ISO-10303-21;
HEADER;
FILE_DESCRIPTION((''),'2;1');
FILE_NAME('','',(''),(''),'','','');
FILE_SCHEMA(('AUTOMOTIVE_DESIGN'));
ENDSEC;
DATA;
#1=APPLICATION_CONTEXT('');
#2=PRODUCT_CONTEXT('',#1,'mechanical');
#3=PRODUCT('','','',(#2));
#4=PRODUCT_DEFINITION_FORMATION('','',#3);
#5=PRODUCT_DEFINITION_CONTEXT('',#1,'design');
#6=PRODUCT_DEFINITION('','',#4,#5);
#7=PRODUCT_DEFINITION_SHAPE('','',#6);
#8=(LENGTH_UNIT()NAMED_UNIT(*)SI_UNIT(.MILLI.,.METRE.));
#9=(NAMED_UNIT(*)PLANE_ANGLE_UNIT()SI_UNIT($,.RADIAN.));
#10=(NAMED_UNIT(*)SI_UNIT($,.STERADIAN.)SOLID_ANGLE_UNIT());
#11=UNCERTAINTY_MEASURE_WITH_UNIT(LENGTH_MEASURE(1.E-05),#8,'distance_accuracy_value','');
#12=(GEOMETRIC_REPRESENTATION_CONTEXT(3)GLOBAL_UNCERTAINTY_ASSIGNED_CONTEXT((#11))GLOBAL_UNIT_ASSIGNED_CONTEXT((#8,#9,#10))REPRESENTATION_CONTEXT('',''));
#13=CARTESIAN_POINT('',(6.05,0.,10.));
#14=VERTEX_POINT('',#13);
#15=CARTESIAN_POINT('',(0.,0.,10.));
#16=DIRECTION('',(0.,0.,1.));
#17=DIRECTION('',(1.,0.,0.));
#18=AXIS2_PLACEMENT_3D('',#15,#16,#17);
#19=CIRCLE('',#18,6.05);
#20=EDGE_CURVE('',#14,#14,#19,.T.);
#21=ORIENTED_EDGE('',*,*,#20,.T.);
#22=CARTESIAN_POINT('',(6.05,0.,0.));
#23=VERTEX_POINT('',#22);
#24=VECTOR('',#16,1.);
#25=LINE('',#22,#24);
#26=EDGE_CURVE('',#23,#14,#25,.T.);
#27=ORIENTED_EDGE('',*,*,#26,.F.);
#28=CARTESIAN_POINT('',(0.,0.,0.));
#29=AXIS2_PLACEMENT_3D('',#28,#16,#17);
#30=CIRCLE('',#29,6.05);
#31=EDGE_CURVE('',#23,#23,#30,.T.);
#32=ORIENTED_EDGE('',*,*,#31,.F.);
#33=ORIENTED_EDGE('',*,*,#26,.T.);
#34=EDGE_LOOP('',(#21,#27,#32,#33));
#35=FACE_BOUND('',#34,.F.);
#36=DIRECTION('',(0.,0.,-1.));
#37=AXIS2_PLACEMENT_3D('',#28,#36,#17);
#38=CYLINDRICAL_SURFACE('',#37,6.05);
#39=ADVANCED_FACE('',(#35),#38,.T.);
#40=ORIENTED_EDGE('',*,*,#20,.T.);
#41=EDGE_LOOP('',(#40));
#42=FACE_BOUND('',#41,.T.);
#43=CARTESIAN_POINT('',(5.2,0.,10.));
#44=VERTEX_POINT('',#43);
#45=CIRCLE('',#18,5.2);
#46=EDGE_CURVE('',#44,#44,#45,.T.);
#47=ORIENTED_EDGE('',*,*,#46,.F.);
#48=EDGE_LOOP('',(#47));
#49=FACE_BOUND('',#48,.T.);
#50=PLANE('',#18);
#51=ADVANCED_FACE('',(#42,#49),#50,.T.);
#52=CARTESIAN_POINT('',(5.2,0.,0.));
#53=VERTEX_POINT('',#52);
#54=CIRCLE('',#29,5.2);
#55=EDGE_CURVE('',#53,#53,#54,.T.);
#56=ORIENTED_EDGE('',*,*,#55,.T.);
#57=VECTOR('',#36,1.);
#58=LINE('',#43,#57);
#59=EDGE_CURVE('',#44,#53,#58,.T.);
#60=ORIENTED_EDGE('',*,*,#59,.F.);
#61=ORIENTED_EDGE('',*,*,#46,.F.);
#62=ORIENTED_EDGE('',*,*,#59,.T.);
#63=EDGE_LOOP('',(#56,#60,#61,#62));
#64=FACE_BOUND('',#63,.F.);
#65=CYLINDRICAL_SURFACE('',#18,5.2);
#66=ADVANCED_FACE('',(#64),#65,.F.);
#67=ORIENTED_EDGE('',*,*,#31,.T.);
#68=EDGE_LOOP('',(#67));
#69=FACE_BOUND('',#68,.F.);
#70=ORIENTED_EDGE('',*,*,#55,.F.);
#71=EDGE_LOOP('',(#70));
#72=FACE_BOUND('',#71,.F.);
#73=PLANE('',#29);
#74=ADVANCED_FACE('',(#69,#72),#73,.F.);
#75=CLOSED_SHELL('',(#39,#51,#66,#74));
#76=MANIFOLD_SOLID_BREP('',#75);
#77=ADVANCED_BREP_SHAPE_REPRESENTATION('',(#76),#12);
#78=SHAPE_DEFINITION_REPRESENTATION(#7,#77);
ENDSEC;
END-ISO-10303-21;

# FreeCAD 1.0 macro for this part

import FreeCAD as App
import Part
import Sketcher
from FreeCAD import Vector

doc = App.newDocument("Part")
body = doc.addObject("PartDesign::Body", "Body")

sketch1 = doc.addObject("Sketcher::SketchObject", "Sketch")
body.addObject(sketch1)
sketch1.AttachmentSupport = (doc.XY_Plane, [""])
sketch1.MapMode = "FlatFace"
sketch1.addGeometry(Part.Circle(Vector(0, 0, 0), Vector(0, 0, 1), 6), False)
sketch1.addConstraint(Sketcher.Constraint("Coincident", 0, 3, -1, 1))
sketch1.addConstraint(Sketcher.Constraint("Diameter", 0, 12.1))
pad1 = doc.addObject("PartDesign::Pad", "Pad")
body.addObject(pad1)
pad1.Profile = sketch1
pad1.Length = 10

sketch2 = doc.addObject("Sketcher::SketchObject", "Sketch001")
body.addObject(sketch2)
sketch2.AttachmentSupport = (doc.XY_Plane, [""])
sketch2.MapMode = "FlatFace"
sketch2.AttachmentOffset = App.Placement(Vector(0, 0, 10), App.Rotation())
sketch2.addGeometry(Part.Circle(Vector(0, 0, 0), Vector(0, 0, 1), 5), False)
sketch2.addConstraint(Sketcher.Constraint("Coincident", 0, 3, -1, 1))
sketch2.addConstraint(Sketcher.Constraint("Diameter", 0, 10.4))
pocket1 = doc.addObject("PartDesign::Pocket", "Pocket")
body.addObject(pocket1)
pocket1.Profile = sketch2
pocket1.Type = "ThroughAll"

doc.recompute()
